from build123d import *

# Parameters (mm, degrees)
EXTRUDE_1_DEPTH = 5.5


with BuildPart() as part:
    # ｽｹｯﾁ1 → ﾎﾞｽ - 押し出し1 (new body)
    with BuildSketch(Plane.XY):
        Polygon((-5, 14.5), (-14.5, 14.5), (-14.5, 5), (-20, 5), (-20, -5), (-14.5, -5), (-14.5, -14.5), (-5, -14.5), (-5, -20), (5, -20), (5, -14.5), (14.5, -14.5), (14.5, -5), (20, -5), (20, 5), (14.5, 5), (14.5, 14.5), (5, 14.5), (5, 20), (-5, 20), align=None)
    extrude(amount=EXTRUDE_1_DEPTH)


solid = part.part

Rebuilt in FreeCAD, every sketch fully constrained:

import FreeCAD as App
import Part
import Sketcher
from FreeCAD import Vector
Q = App.Units.Quantity

doc = App.newDocument("Part")
body = doc.addObject("PartDesign::Body", "Body")

sketch1 = body.newObject("Sketcher::SketchObject", "Sketch")
sketch1.AttachmentSupport = (doc.getObject("XY_Plane"), [""])
sketch1.MapMode = "FlatFace"
sketch1.addGeometry([
    Part.LineSegment(Vector(-5, 14.5, 0), Vector(-14.5, 14.5, 0)),
    Part.LineSegment(Vector(-14.5, 14.5, 0), Vector(-14.5, 5, 0)),
    Part.LineSegment(Vector(-14.5, 5, 0), Vector(-20, 5, 0)),
    Part.LineSegment(Vector(-20, 5, 0), Vector(-20, -5, 0)),
    Part.LineSegment(Vector(-20, -5, 0), Vector(-14.5, -5, 0)),
    Part.LineSegment(Vector(-14.5, -5, 0), Vector(-14.5, -14.5, 0)),
    Part.LineSegment(Vector(-14.5, -14.5, 0), Vector(-5, -14.5, 0)),
    Part.LineSegment(Vector(-5, -14.5, 0), Vector(-5, -20, 0)),
    Part.LineSegment(Vector(-5, -20, 0), Vector(5, -20, 0)),
    Part.LineSegment(Vector(5, -20, 0), Vector(5, -14.5, 0)),
    Part.LineSegment(Vector(5, -14.5, 0), Vector(14.5, -14.5, 0)),
    Part.LineSegment(Vector(14.5, -14.5, 0), Vector(14.5, -5, 0)),
    Part.LineSegment(Vector(14.5, -5, 0), Vector(20, -5, 0)),
    Part.LineSegment(Vector(20, -5, 0), Vector(20, 5, 0)),
    Part.LineSegment(Vector(20, 5, 0), Vector(14.5, 5, 0)),
    Part.LineSegment(Vector(14.5, 5, 0), Vector(14.5, 14.5, 0)),
    Part.LineSegment(Vector(14.5, 14.5, 0), Vector(5, 14.5, 0)),
    Part.LineSegment(Vector(5, 14.5, 0), Vector(5, 20, 0)),
    Part.LineSegment(Vector(5, 20, 0), Vector(-5, 20, 0)),
    Part.LineSegment(Vector(-5, 20, 0), Vector(-5, 14.5, 0)),
], False)
sketch1.addConstraint([
    Sketcher.Constraint("Coincident", 0, 2, 1, 1),
    Sketcher.Constraint("Coincident", 1, 2, 2, 1),
    Sketcher.Constraint("Coincident", 2, 2, 3, 1),
    Sketcher.Constraint("Coincident", 3, 2, 4, 1),
    Sketcher.Constraint("Coincident", 4, 2, 5, 1),
    Sketcher.Constraint("Coincident", 5, 2, 6, 1),
    Sketcher.Constraint("Coincident", 6, 2, 7, 1),
    Sketcher.Constraint("Coincident", 7, 2, 8, 1),
    Sketcher.Constraint("Coincident", 8, 2, 9, 1),
    Sketcher.Constraint("Coincident", 9, 2, 10, 1),
    Sketcher.Constraint("Coincident", 10, 2, 11, 1),
    Sketcher.Constraint("Coincident", 11, 2, 12, 1),
    Sketcher.Constraint("Coincident", 12, 2, 13, 1),
    Sketcher.Constraint("Coincident", 13, 2, 14, 1),
    Sketcher.Constraint("Coincident", 14, 2, 15, 1),
    Sketcher.Constraint("Coincident", 15, 2, 16, 1),
    Sketcher.Constraint("Coincident", 16, 2, 17, 1),
    Sketcher.Constraint("Coincident", 17, 2, 18, 1),
    Sketcher.Constraint("Coincident", 18, 2, 19, 1),
    Sketcher.Constraint("Coincident", 19, 2, 0, 1),
    Sketcher.Constraint("Horizontal", 0),
    Sketcher.Constraint("Vertical", 1),
    Sketcher.Constraint("Horizontal", 2),
    Sketcher.Constraint("Vertical", 3),
    Sketcher.Constraint("Horizontal", 4),
    Sketcher.Constraint("Vertical", 5),
    Sketcher.Constraint("Horizontal", 6),
    Sketcher.Constraint("Vertical", 7),
    Sketcher.Constraint("Horizontal", 8),
    Sketcher.Constraint("Vertical", 9),
    Sketcher.Constraint("Horizontal", 10),
    Sketcher.Constraint("Vertical", 11),
    Sketcher.Constraint("Horizontal", 12),
    Sketcher.Constraint("Vertical", 13),
    Sketcher.Constraint("Horizontal", 14),
    Sketcher.Constraint("Vertical", 15),
    Sketcher.Constraint("Horizontal", 16),
    Sketcher.Constraint("Vertical", 17),
    Sketcher.Constraint("Horizontal", 18),
    Sketcher.Constraint("Vertical", 19),
    Sketcher.Constraint("Symmetric", 0, 2, 10, 2, -1, 1),
    Sketcher.Constraint("Symmetric", 2, 2, 12, 2, -1, 1),
    Sketcher.Constraint("Symmetric", 4, 2, 14, 2, -1, 1),
    Sketcher.Constraint("Symmetric", 6, 2, 16, 2, -1, 1),
    Sketcher.Constraint("Symmetric", 8, 2, 18, 2, -1, 1),
    Sketcher.Constraint("Symmetric", 6, 2, 9, 2, -2),
    Sketcher.Constraint("Symmetric", 4, 2, 11, 2, -2),
    Sketcher.Constraint("Equal", 16, 1),
    Sketcher.Constraint("Equal", 18, 3),
    Sketcher.Constraint("Equal", 14, 7),
    Sketcher.Constraint("DistanceX", 8, 1, 8, 2, Q("10 mm")),
    Sketcher.Constraint("DistanceX", 0, 2, 0, 1, Q("9.5 mm")),
    Sketcher.Constraint("DistanceX", 2, 2, 2, 1, Q("5.5 mm")),
])
pad1 = body.newObject("PartDesign::Pad", "Pad")
pad1.Profile = sketch1
pad1.Length = 5.5

doc.recompute()
